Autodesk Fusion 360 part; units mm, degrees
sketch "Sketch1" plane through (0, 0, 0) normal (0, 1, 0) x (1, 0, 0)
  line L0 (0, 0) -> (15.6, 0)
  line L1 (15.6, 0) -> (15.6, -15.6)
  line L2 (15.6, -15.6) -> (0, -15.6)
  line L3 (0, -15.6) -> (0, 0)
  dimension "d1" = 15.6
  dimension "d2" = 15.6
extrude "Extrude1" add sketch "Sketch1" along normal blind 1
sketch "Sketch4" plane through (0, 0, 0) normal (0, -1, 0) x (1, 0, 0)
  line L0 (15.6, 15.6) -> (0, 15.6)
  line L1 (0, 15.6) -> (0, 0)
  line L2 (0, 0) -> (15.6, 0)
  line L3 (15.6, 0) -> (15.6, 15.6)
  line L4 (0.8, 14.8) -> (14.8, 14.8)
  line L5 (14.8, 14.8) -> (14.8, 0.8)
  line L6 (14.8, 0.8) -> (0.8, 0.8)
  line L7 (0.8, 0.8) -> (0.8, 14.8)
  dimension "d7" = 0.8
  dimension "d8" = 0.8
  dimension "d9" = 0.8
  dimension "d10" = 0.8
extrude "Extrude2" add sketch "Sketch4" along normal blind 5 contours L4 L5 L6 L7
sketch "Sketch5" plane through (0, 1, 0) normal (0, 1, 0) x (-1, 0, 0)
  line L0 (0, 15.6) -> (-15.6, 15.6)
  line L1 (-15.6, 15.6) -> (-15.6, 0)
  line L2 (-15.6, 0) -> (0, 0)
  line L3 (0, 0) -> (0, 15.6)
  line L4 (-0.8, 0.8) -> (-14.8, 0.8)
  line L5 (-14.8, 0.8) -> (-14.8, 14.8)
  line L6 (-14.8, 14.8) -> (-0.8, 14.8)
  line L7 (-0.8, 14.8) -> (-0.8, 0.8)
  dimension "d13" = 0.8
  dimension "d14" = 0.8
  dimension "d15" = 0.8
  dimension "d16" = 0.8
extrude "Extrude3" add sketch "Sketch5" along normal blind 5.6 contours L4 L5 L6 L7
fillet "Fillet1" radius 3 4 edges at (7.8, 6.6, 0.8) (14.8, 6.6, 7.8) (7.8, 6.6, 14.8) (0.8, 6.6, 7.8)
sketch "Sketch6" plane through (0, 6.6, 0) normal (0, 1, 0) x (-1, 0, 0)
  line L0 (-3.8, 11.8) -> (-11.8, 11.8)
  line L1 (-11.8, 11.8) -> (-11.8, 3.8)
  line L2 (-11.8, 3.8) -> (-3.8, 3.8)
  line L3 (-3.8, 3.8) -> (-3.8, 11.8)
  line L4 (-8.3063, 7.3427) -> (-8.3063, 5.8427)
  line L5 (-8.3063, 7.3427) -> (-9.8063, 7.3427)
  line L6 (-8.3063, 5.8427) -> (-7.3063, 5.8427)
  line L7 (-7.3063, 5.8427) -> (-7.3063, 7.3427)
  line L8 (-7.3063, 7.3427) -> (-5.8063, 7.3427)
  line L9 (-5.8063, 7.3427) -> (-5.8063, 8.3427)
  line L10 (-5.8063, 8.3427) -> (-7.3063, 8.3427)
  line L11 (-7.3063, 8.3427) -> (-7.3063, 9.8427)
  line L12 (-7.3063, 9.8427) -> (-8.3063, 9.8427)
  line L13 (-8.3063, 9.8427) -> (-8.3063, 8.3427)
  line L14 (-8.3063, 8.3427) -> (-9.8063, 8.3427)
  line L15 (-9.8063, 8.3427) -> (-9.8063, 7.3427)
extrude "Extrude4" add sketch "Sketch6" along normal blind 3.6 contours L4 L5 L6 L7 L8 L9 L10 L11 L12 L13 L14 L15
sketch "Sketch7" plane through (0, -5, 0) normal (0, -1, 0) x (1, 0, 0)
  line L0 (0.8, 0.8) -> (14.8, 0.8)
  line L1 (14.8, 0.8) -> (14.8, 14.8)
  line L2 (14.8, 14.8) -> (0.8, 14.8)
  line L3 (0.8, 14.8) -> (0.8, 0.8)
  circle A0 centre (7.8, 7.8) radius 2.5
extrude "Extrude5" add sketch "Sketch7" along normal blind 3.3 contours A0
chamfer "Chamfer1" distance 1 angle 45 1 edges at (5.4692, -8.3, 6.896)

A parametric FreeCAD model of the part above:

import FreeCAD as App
import Part
import Sketcher
from FreeCAD import Vector


def edges_at(feature, points):
    """Names of the edges that pass closest to the given points."""
    edges = feature.Shape.Edges
    near = lambda p: min(range(len(edges)), key=lambda i: edges[i].distToShape(Part.Vertex(*p))[0])
    return sorted({f"Edge{near(p) + 1}" for p in points})

doc = App.newDocument("Part")
body = doc.addObject("PartDesign::Body", "Body")

# Sketch on XZ plane
sketch1 = body.newObject("Sketcher::SketchObject", "Sketch")
sketch1.AttachmentSupport = (doc.getObject("XZ_Plane"), [""])
sketch1.MapMode = "FlatFace"
sketch1.addGeometry(Part.LineSegment(Vector(16, 0, 0), Vector(0, 0, 0)), False)
sketch1.addGeometry(Part.LineSegment(Vector(0, 0, 0), Vector(0, 16, 0)), False)
sketch1.addGeometry(Part.LineSegment(Vector(0, 16, 0), Vector(16, 16, 0)), False)
sketch1.addGeometry(Part.LineSegment(Vector(16, 16, 0), Vector(16, 0, 0)), False)
sketch1.addConstraint(Sketcher.Constraint("Coincident", 0, 2, 1, 1))
sketch1.addConstraint(Sketcher.Constraint("Coincident", 1, 2, 2, 1))
sketch1.addConstraint(Sketcher.Constraint("Coincident", 2, 2, 3, 1))
sketch1.addConstraint(Sketcher.Constraint("Coincident", 3, 2, 0, 1))
sketch1.addConstraint(Sketcher.Constraint("Horizontal", 0))
sketch1.addConstraint(Sketcher.Constraint("Vertical", 1))
sketch1.addConstraint(Sketcher.Constraint("Horizontal", 2))
sketch1.addConstraint(Sketcher.Constraint("Vertical", 3))
sketch1.addConstraint(Sketcher.Constraint("Coincident", 0, 2, -1, 1))
sketch1.addConstraint(Sketcher.Constraint("Equal", 2, 1))
sketch1.addConstraint(Sketcher.Constraint("DistanceX", 0, 2, 0, 1, 15.6))
pad1 = body.newObject("PartDesign::Pad", "Pad")
pad1.Profile = sketch1
pad1.Length = 1
pad1.Reversed = True

# Sketch on XZ plane
sketch2 = body.newObject("Sketcher::SketchObject", "Sketch001")
sketch2.AttachmentSupport = (doc.getObject("XZ_Plane"), [""])
sketch2.MapMode = "FlatFace"
sketch2.addGeometry(Part.LineSegment(Vector(15, 15, 0), Vector(1, 15, 0)), False)
sketch2.addGeometry(Part.LineSegment(Vector(1, 15, 0), Vector(1, 1, 0)), False)
sketch2.addGeometry(Part.LineSegment(Vector(1, 1, 0), Vector(15, 1, 0)), False)
sketch2.addGeometry(Part.LineSegment(Vector(15, 1, 0), Vector(15, 15, 0)), False)
sketch2.addConstraint(Sketcher.Constraint("Coincident", 0, 2, 1, 1))
sketch2.addConstraint(Sketcher.Constraint("Coincident", 1, 2, 2, 1))
sketch2.addConstraint(Sketcher.Constraint("Coincident", 2, 2, 3, 1))
sketch2.addConstraint(Sketcher.Constraint("Coincident", 3, 2, 0, 1))
sketch2.addConstraint(Sketcher.Constraint("Horizontal", 0))
sketch2.addConstraint(Sketcher.Constraint("Vertical", 1))
sketch2.addConstraint(Sketcher.Constraint("Horizontal", 2))
sketch2.addConstraint(Sketcher.Constraint("Vertical", 3))
sketch2.addConstraint(Sketcher.Constraint("Equal", 2, 1))
sketch2.addConstraint(Sketcher.Constraint("DistanceX", -1, 1, 0, 2, 0.8))
sketch2.addConstraint(Sketcher.Constraint("DistanceY", -1, 1, 1, 2, 0.8))
sketch2.addConstraint(Sketcher.Constraint("DistanceX", 0, 2, 0, 1, 14.0))
pad2 = body.newObject("PartDesign::Pad", "Pad001")
pad2.Profile = sketch2
pad2.Length = 5

# Sketch on XZ plane
sketch3 = body.newObject("Sketcher::SketchObject", "Sketch002")
sketch3.AttachmentSupport = (doc.getObject("XZ_Plane"), [""])
sketch3.MapMode = "FlatFace"
sketch3.AttachmentOffset = App.Placement(Vector(0, 0, -1), App.Rotation())
sketch3.addGeometry(Part.LineSegment(Vector(15, 1, 0), Vector(1, 1, 0)), False)
sketch3.addGeometry(Part.LineSegment(Vector(1, 1, 0), Vector(1, 15, 0)), False)
sketch3.addGeometry(Part.LineSegment(Vector(1, 15, 0), Vector(15, 15, 0)), False)
sketch3.addGeometry(Part.LineSegment(Vector(15, 15, 0), Vector(15, 1, 0)), False)
sketch3.addConstraint(Sketcher.Constraint("Coincident", 0, 2, 1, 1))
sketch3.addConstraint(Sketcher.Constraint("Coincident", 1, 2, 2, 1))
sketch3.addConstraint(Sketcher.Constraint("Coincident", 2, 2, 3, 1))
sketch3.addConstraint(Sketcher.Constraint("Coincident", 3, 2, 0, 1))
sketch3.addConstraint(Sketcher.Constraint("Horizontal", 0))
sketch3.addConstraint(Sketcher.Constraint("Vertical", 1))
sketch3.addConstraint(Sketcher.Constraint("Horizontal", 2))
sketch3.addConstraint(Sketcher.Constraint("Vertical", 3))
sketch3.addConstraint(Sketcher.Constraint("Equal", 2, 1))
sketch3.addConstraint(Sketcher.Constraint("DistanceX", -1, 1, 0, 2, 0.8))
sketch3.addConstraint(Sketcher.Constraint("DistanceY", -1, 1, 0, 2, 0.8))
sketch3.addConstraint(Sketcher.Constraint("DistanceX", 0, 2, 0, 1, 14.0))
pad3 = body.newObject("PartDesign::Pad", "Pad002")
pad3.Profile = sketch3
pad3.Length = 5.6
pad3.Reversed = True
doc.recompute()

fillet = body.newObject("PartDesign::Fillet", "Fillet")
fillet.Base = (pad3, edges_at(pad3, [
    (7.8, 6.6, 0.8),
    (14.8, 6.6, 7.8),
    (7.8, 6.6, 14.8),
    (0.8, 6.6, 7.8),
]))
fillet.Radius = 3

# Sketch on XZ plane
sketch4 = body.newObject("Sketcher::SketchObject", "Sketch003")
sketch4.AttachmentSupport = (doc.getObject("XZ_Plane"), [""])
sketch4.MapMode = "FlatFace"
sketch4.AttachmentOffset = App.Placement(Vector(0, 0, -6.6), App.Rotation())
sketch4.addGeometry(Part.LineSegment(Vector(9.8, 7.3, 0), Vector(8.3, 7.3, 0)), False)
sketch4.addGeometry(Part.LineSegment(Vector(8.3, 7.3, 0), Vector(8.3, 5.8, 0)), False)
sketch4.addGeometry(Part.LineSegment(Vector(8.3, 5.8, 0), Vector(7.3, 5.8, 0)), False)
sketch4.addGeometry(Part.LineSegment(Vector(7.3, 5.8, 0), Vector(7.3, 7.3, 0)), False)
sketch4.addGeometry(Part.LineSegment(Vector(7.3, 7.3, 0), Vector(5.8, 7.3, 0)), False)
sketch4.addGeometry(Part.LineSegment(Vector(5.8, 7.3, 0), Vector(5.8, 8.3, 0)), False)
sketch4.addGeometry(Part.LineSegment(Vector(5.8, 8.3, 0), Vector(7.3, 8.3, 0)), False)
sketch4.addGeometry(Part.LineSegment(Vector(7.3, 8.3, 0), Vector(7.3, 9.8, 0)), False)
sketch4.addGeometry(Part.LineSegment(Vector(7.3, 9.8, 0), Vector(8.3, 9.8, 0)), False)
sketch4.addGeometry(Part.LineSegment(Vector(8.3, 9.8, 0), Vector(8.3, 8.3, 0)), False)
sketch4.addGeometry(Part.LineSegment(Vector(8.3, 8.3, 0), Vector(9.8, 8.3, 0)), False)
sketch4.addGeometry(Part.LineSegment(Vector(9.8, 8.3, 0), Vector(9.8, 7.3, 0)), False)
sketch4.addConstraint(Sketcher.Constraint("Coincident", 0, 2, 1, 1))
sketch4.addConstraint(Sketcher.Constraint("Coincident", 1, 2, 2, 1))
sketch4.addConstraint(Sketcher.Constraint("Coincident", 2, 2, 3, 1))
sketch4.addConstraint(Sketcher.Constraint("Coincident", 3, 2, 4, 1))
sketch4.addConstraint(Sketcher.Constraint("Coincident", 4, 2, 5, 1))
sketch4.addConstraint(Sketcher.Constraint("Coincident", 5, 2, 6, 1))
sketch4.addConstraint(Sketcher.Constraint("Coincident", 6, 2, 7, 1))
sketch4.addConstraint(Sketcher.Constraint("Coincident", 7, 2, 8, 1))
sketch4.addConstraint(Sketcher.Constraint("Coincident", 8, 2, 9, 1))
sketch4.addConstraint(Sketcher.Constraint("Coincident", 9, 2, 10, 1))
sketch4.addConstraint(Sketcher.Constraint("Coincident", 10, 2, 11, 1))
sketch4.addConstraint(Sketcher.Constraint("Coincident", 11, 2, 0, 1))
sketch4.addConstraint(Sketcher.Constraint("Horizontal", 0))
sketch4.addConstraint(Sketcher.Constraint("Vertical", 1))
sketch4.addConstraint(Sketcher.Constraint("Horizontal", 2))
sketch4.addConstraint(Sketcher.Constraint("Vertical", 3))
sketch4.addConstraint(Sketcher.Constraint("Horizontal", 4))
sketch4.addConstraint(Sketcher.Constraint("Vertical", 5))
sketch4.addConstraint(Sketcher.Constraint("Horizontal", 6))
sketch4.addConstraint(Sketcher.Constraint("Vertical", 7))
sketch4.addConstraint(Sketcher.Constraint("Horizontal", 8))
sketch4.addConstraint(Sketcher.Constraint("Vertical", 9))
sketch4.addConstraint(Sketcher.Constraint("Horizontal", 10))
sketch4.addConstraint(Sketcher.Constraint("Vertical", 11))
sketch4.addConstraint(Sketcher.Constraint("Horizontal", 0, 2, 3, 2))
sketch4.addConstraint(Sketcher.Constraint("Horizontal", 6, 2, 9, 2))
sketch4.addConstraint(Sketcher.Constraint("Vertical", 3, 2, 6, 2))
sketch4.addConstraint(Sketcher.Constraint("Vertical", 1, 2, 8, 2))
sketch4.addConstraint(Sketcher.Constraint("Equal", 0, 4))
sketch4.addConstraint(Sketcher.Constraint("Equal", 10, 1))
sketch4.addConstraint(Sketcher.Constraint("Equal", 8, 5))
sketch4.addConstraint(Sketcher.Constraint("Equal", 3, 7))
sketch4.addConstraint(Sketcher.Constraint("DistanceX", 2, 2, 2, 1, 1.0))
sketch4.addConstraint(Sketcher.Constraint("DistanceX", 0, 2, 0, 1, 1.5))
sketch4.addConstraint(Sketcher.Constraint("DistanceX", -1, 1, 0, 2, 8.3063))
sketch4.addConstraint(Sketcher.Constraint("DistanceY", -1, 1, 0, 2, 7.3427))
pad4 = body.newObject("PartDesign::Pad", "Pad003")
pad4.Profile = sketch4
pad4.Length = 3.6
pad4.Reversed = True

# Sketch on XZ plane
sketch5 = body.newObject("Sketcher::SketchObject", "Sketch004")
sketch5.AttachmentSupport = (doc.getObject("XZ_Plane"), [""])
sketch5.MapMode = "FlatFace"
sketch5.AttachmentOffset = App.Placement(Vector(0, 0, 5), App.Rotation())
sketch5.addGeometry(Part.Circle(Vector(7.8, 7.8, 0), Vector(0, 0, 1), 2.5), False)
sketch5.addConstraint(Sketcher.Constraint("Diameter", 0, 5.0))
sketch5.addConstraint(Sketcher.Constraint("DistanceX", -1, 1, 0, 3, 7.8))
sketch5.addConstraint(Sketcher.Constraint("DistanceY", -1, 1, 0, 3, 7.8))
pad5 = body.newObject("PartDesign::Pad", "Pad004")
pad5.Profile = sketch5
pad5.Length = 3.3
doc.recompute()

chamfer = body.newObject("PartDesign::Chamfer", "Chamfer")
chamfer.Base = (pad5, edges_at(pad5, [(5.469, -8.3, 6.896)]))
chamfer.Size = 1

doc.recompute()
